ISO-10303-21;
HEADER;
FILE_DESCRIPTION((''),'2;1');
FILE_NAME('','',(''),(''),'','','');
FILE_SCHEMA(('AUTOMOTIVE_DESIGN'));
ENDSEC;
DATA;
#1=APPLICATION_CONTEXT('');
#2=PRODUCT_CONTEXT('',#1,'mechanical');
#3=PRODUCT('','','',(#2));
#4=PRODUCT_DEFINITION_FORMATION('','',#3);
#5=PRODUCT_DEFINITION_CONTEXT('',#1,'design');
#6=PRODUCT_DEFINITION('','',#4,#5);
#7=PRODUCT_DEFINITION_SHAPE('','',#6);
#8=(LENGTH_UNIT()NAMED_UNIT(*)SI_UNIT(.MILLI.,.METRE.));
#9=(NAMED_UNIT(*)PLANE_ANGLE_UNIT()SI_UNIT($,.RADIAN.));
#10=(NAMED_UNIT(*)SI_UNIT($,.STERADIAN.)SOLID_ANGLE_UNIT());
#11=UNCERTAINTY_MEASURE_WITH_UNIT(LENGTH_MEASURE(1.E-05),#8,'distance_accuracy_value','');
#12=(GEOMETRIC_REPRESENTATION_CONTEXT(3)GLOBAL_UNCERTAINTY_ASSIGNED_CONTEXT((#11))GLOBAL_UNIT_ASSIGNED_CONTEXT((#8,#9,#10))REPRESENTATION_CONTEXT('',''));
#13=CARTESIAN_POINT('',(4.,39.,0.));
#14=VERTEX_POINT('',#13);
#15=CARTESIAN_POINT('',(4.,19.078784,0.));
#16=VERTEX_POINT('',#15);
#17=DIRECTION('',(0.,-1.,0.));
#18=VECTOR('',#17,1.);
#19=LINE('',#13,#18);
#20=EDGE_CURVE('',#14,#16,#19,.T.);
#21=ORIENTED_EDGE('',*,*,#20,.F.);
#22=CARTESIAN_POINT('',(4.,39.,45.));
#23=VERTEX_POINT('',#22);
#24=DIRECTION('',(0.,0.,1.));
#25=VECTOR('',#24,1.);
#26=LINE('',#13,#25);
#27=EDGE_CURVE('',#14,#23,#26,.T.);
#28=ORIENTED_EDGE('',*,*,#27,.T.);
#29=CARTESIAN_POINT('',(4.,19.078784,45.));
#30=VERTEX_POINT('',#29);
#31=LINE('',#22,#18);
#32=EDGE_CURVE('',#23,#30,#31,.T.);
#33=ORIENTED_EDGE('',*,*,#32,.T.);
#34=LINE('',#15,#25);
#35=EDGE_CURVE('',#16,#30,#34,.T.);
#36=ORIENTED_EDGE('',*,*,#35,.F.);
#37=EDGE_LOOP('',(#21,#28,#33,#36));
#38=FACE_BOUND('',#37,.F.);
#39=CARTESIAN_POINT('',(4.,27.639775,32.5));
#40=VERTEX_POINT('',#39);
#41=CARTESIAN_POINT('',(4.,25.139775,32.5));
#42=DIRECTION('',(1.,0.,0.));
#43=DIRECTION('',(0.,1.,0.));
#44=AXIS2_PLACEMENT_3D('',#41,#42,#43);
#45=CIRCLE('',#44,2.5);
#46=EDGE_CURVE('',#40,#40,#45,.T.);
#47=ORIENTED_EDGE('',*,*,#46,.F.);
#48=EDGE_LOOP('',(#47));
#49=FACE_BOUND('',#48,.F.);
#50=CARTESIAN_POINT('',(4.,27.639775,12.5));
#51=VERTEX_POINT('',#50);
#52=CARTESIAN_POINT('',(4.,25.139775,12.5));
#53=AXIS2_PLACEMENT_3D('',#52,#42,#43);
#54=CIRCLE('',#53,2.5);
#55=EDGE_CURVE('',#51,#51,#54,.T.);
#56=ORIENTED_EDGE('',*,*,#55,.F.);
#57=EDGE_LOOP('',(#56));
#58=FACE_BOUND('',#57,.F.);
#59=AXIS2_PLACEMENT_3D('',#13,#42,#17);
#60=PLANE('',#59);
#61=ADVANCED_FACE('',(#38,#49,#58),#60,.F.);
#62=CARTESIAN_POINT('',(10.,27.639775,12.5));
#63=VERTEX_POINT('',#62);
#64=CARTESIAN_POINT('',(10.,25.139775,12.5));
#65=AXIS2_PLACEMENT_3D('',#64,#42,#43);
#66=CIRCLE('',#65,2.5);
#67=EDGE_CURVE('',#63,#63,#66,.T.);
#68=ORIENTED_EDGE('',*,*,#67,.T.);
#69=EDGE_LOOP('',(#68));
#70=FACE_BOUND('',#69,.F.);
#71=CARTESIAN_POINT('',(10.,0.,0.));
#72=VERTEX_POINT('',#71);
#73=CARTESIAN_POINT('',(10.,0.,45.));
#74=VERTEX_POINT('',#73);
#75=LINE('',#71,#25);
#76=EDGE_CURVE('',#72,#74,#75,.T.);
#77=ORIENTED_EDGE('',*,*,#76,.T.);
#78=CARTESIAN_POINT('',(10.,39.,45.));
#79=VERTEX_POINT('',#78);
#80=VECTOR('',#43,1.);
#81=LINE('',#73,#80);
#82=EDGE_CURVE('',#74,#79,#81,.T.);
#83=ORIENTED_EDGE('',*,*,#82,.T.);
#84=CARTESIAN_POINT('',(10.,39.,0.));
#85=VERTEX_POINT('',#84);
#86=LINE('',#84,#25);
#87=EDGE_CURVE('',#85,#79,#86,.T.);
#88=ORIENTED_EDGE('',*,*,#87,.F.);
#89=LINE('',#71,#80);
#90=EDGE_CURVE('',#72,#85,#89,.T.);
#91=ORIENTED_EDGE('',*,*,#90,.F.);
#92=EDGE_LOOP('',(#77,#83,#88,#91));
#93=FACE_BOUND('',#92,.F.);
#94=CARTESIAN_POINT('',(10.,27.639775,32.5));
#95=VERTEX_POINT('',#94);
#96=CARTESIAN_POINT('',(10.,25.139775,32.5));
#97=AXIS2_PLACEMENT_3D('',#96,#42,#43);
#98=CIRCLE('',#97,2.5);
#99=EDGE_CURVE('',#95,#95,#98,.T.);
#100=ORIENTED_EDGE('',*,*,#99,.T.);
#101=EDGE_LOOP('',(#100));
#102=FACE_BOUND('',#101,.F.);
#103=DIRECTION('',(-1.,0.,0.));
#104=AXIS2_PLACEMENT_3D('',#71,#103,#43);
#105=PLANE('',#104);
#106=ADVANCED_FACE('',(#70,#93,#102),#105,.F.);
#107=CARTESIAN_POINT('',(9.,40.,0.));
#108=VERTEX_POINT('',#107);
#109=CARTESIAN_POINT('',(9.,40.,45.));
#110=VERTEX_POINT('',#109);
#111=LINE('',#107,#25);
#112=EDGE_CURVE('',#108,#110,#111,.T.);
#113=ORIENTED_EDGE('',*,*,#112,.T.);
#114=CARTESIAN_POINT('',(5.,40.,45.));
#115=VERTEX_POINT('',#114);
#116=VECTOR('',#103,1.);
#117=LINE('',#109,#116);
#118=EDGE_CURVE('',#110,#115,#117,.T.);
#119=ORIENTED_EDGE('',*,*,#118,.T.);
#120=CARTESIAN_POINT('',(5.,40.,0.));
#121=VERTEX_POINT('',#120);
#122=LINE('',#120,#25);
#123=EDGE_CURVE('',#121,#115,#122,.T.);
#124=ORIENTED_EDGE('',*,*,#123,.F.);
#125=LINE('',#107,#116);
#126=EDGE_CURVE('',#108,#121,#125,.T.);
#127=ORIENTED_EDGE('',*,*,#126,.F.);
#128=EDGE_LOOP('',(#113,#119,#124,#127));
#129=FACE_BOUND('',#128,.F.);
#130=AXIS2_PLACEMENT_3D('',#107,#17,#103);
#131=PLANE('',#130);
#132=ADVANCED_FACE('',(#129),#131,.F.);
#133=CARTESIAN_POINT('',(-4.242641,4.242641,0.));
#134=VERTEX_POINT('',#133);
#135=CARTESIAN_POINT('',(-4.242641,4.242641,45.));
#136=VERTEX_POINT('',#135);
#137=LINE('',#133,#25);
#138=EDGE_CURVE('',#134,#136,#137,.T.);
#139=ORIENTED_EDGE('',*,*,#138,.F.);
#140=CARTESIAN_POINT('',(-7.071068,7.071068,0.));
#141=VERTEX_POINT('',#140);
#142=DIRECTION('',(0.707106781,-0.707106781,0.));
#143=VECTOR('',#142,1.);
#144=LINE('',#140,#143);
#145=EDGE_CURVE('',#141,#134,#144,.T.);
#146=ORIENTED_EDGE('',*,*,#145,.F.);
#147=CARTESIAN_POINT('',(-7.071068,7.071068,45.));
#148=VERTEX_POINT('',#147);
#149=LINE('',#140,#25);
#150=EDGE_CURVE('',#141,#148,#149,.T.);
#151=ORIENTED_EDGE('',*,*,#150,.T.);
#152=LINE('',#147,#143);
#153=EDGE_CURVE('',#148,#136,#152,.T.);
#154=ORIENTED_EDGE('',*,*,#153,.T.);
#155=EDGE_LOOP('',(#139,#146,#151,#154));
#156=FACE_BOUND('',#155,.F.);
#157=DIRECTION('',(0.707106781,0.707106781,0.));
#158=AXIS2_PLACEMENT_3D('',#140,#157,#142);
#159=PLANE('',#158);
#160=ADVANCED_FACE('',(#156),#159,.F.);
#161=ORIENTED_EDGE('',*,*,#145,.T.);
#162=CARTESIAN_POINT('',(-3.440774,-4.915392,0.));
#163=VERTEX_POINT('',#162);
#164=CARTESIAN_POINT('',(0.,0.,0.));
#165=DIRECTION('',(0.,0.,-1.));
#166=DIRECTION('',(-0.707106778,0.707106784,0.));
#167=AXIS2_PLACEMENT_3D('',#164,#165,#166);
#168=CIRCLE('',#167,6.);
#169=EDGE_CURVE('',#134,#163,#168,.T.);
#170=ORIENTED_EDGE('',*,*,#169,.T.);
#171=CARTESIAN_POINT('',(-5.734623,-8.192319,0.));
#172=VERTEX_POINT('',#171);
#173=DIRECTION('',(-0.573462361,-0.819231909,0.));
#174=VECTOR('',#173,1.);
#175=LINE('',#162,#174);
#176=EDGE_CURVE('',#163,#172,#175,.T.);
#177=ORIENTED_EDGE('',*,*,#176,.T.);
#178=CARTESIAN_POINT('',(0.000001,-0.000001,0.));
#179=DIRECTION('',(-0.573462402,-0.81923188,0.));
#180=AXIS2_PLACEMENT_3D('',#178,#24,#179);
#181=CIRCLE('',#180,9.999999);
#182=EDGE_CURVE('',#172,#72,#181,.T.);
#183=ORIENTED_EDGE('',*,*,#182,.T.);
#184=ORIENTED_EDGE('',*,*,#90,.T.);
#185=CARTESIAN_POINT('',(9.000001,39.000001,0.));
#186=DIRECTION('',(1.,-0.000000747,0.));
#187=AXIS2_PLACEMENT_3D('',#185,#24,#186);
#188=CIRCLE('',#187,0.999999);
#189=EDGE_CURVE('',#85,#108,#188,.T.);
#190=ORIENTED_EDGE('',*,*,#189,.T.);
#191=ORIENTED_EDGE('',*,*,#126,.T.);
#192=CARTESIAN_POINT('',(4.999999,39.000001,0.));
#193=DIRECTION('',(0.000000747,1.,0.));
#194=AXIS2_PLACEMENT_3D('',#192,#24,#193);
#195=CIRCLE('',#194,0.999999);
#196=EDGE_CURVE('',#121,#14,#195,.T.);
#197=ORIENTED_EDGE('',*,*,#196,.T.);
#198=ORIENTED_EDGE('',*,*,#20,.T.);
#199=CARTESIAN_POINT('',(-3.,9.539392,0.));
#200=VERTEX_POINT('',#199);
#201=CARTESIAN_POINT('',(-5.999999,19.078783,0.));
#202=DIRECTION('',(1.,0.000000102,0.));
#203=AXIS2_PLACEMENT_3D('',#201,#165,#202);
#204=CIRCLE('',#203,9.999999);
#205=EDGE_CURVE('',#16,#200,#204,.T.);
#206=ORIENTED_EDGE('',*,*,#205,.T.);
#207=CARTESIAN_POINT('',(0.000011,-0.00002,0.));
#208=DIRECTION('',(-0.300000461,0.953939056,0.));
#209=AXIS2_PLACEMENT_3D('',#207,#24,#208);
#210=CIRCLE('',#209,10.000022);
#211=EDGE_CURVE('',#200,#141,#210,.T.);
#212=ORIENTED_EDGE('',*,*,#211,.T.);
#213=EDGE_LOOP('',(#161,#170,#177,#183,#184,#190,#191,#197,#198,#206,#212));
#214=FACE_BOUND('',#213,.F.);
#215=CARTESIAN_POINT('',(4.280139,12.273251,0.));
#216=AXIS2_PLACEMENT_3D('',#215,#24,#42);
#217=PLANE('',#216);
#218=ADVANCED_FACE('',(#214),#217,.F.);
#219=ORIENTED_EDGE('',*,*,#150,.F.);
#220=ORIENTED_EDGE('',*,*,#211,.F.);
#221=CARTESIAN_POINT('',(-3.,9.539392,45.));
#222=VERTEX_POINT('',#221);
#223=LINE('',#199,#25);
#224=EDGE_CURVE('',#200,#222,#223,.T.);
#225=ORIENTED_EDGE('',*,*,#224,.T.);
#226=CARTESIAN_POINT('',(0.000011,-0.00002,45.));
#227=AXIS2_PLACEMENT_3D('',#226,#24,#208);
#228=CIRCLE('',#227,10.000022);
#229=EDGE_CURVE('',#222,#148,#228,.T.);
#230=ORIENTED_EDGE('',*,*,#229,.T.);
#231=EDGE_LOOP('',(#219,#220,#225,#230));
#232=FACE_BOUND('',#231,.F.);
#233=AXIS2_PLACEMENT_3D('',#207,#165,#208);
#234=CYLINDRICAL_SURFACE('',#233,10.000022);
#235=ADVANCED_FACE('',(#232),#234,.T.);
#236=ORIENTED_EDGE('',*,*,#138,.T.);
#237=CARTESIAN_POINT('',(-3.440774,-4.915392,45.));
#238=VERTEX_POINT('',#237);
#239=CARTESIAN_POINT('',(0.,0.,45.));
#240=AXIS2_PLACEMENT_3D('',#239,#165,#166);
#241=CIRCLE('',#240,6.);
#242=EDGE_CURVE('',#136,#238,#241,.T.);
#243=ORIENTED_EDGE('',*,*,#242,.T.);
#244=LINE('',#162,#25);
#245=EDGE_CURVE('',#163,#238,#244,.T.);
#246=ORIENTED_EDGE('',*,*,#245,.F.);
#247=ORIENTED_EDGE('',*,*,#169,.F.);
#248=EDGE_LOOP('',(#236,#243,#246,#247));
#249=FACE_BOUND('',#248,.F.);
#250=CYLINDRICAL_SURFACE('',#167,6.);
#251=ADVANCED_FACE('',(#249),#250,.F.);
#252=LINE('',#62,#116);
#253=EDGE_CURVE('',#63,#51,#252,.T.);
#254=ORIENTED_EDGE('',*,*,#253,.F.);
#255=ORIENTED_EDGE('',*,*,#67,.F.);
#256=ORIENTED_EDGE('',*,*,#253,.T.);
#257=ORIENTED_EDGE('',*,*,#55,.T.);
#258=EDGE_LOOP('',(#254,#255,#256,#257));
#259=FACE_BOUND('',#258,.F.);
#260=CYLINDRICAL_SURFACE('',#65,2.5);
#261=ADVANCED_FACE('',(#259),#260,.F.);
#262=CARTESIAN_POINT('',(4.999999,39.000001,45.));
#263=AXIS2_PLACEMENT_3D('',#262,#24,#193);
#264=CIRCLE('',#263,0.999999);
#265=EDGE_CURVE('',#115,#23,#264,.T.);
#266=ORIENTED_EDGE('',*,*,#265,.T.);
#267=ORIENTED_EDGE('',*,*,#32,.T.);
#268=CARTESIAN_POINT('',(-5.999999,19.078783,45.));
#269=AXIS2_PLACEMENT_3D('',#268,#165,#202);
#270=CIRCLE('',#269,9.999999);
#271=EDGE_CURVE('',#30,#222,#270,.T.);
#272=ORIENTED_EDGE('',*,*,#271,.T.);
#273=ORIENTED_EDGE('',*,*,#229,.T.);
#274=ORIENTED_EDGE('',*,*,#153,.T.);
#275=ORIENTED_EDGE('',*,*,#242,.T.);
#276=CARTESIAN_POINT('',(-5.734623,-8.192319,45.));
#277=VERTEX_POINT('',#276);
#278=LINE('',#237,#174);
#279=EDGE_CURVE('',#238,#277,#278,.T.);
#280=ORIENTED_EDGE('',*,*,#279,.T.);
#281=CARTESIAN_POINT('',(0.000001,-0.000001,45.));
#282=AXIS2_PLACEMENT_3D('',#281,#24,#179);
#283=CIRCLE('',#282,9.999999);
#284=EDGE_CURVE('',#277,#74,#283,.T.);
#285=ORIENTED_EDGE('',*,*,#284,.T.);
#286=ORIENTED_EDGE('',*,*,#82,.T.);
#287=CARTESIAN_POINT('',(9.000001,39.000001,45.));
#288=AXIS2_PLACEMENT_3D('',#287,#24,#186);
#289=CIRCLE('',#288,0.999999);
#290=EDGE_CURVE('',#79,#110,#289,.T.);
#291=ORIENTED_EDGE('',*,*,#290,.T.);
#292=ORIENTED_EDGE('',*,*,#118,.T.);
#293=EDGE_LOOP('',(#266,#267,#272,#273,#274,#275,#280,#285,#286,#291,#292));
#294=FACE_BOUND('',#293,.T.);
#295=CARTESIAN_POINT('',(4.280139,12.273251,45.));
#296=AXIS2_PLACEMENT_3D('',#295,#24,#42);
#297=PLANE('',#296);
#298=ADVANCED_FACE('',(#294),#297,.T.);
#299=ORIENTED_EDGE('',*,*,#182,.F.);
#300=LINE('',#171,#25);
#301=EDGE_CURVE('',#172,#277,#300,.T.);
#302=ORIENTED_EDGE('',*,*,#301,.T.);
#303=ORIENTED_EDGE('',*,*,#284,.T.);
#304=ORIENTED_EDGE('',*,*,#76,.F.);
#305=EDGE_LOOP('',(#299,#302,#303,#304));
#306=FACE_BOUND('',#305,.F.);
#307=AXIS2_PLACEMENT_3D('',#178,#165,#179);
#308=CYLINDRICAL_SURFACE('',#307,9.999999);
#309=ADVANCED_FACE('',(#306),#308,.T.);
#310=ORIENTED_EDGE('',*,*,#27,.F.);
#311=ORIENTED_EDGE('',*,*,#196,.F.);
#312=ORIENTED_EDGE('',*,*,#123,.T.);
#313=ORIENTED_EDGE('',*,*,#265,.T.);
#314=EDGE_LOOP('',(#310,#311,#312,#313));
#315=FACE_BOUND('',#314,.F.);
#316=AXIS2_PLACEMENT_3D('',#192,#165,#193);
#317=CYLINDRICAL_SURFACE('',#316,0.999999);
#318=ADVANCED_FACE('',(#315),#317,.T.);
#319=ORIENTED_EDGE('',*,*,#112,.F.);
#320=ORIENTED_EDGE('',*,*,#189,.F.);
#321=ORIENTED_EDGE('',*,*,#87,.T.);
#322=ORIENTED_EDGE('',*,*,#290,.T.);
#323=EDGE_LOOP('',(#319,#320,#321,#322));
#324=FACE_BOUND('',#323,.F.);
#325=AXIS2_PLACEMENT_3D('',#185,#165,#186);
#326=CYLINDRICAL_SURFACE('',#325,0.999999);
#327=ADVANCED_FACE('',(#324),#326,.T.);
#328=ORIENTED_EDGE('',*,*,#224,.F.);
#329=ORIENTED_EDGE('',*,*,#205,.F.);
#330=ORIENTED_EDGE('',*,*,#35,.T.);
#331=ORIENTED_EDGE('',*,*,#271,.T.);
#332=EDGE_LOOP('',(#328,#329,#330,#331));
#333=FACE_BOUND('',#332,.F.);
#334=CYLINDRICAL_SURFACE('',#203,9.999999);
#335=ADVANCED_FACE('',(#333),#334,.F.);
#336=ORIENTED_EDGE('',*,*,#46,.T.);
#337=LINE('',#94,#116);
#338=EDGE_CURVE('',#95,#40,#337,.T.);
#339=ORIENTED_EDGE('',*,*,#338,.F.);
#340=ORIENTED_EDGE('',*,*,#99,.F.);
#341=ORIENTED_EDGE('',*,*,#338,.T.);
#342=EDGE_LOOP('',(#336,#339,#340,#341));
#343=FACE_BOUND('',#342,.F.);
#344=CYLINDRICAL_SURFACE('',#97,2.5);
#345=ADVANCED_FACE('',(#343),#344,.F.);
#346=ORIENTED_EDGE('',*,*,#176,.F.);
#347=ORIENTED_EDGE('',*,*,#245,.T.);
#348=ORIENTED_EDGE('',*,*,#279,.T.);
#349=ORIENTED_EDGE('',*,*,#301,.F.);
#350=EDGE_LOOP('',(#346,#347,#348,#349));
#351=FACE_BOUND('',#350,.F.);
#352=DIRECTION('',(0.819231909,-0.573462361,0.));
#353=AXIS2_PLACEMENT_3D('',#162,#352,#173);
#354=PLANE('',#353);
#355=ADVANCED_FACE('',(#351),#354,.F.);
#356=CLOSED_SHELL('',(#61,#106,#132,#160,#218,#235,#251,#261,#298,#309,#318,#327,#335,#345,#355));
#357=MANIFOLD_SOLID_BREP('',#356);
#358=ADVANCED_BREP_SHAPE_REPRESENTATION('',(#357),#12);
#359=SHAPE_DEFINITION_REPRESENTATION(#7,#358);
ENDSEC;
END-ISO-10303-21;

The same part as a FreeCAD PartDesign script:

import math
import FreeCAD as App
import Part
import Sketcher

V = App.Vector
Q = App.Units.Quantity

doc = App.newDocument("Part")
body = doc.addObject("PartDesign::Body", "Body")

sketch1 = doc.addObject("Sketcher::SketchObject", "Sketch")
body.addObject(sketch1)
sketch1.AttachmentSupport = (doc.XY_Plane, [""])
sketch1.MapMode = "FlatFace"
sketch1.addGeometry([
    Part.ArcOfCircle(Part.Circle(V(0, 0, 0), V(0, 0, 1), 6), math.radians(-125), math.radians(135)),
    Part.LineSegment(V(-3.4, -4.9, 0), V(-5.7, -8.2, 0)),
    Part.ArcOfCircle(Part.Circle(V(0, 0, 0), V(0, 0, 1), 10), math.radians(-125), math.radians(0)),
    Part.LineSegment(V(10, 0, 0), V(10, 39, 0)),
    Part.ArcOfCircle(Part.Circle(V(9, 39, 0), V(0, 0, 1), 1), math.radians(0), math.radians(90)),
    Part.LineSegment(V(9, 40, 0), V(5, 40, 0)),
    Part.ArcOfCircle(Part.Circle(V(5, 39, 0), V(0, 0, 1), 1), math.radians(90), math.radians(180)),
    Part.LineSegment(V(4, 39, 0), V(4, 19.1, 0)),
    Part.ArcOfCircle(Part.Circle(V(-6, 19.1, 0), V(0, 0, 1), 10), math.radians(-73), math.radians(0)),
    Part.ArcOfCircle(Part.Circle(V(0, 0, 0), V(0, 0, 1), 10), math.radians(107), math.radians(135)),
    Part.LineSegment(V(-7.1, 7.1, 0), V(-4.2, 4.2, 0)),
], False)
sketch1.addConstraint([
    Sketcher.Constraint("Coincident", 0, 1, 1, 1),
    Sketcher.Constraint("Coincident", 1, 2, 2, 1),
    Sketcher.Constraint("Tangent", 2, 2, 3, 1),
    Sketcher.Constraint("Tangent", 3, 2, 4, 1),
    Sketcher.Constraint("Tangent", 4, 2, 5, 1),
    Sketcher.Constraint("Tangent", 5, 2, 6, 1),
    Sketcher.Constraint("Tangent", 6, 2, 7, 1),
    Sketcher.Constraint("Tangent", 7, 2, 8, 2),
    Sketcher.Constraint("Tangent", 8, 1, 9, 1),
    Sketcher.Constraint("Coincident", 9, 2, 10, 1),
    Sketcher.Constraint("Coincident", 10, 2, 0, 2),
    Sketcher.Constraint("Vertical", 3),
    Sketcher.Constraint("Horizontal", 5),
    Sketcher.Constraint("Vertical", 7),
    Sketcher.Constraint("Coincident", 0, 3, -1, 1),
    Sketcher.Constraint("Coincident", 2, 3, -1, 1),
    Sketcher.Constraint("Equal", 4, 6),
    Sketcher.Constraint("Equal", 2, 8),
    Sketcher.Constraint("Equal", 1, 10),
    Sketcher.Constraint("Radius", 0, 6.0),
    Sketcher.Constraint("Radius", 2, 9.999999),
    Sketcher.Constraint("Radius", 4, 0.999999),
    Sketcher.Constraint("DistanceX", 5, 2, 5, 1, 4.0),
    Sketcher.Constraint("DistanceY", 3, 1, 3, 2, 39.0),
    Sketcher.Constraint("Angle", 10, Q("-45 deg")),
    Sketcher.Constraint("DistanceX", 8, 1, -1, 1, 3.0),
    Sketcher.Constraint("Radius", 9, 10.000022),
    Sketcher.Constraint("DistanceY", 1, 2, 9, 3, 8.192299),
    Sketcher.Constraint("DistanceX", 10, 2, -1, 1, 4.242641),
    Sketcher.Constraint("DistanceY", 0, 1, 2, 3, 4.915391),
])
pad1 = doc.addObject("PartDesign::Pad", "Pad")
body.addObject(pad1)
pad1.Profile = sketch1
pad1.Length = 45

sketch2 = doc.addObject("Sketcher::SketchObject", "Sketch001")
body.addObject(sketch2)
sketch2.AttachmentSupport = (doc.YZ_Plane, [""])
sketch2.MapMode = "FlatFace"
sketch2.AttachmentOffset = App.Placement(V(0, 0, 10), App.Rotation())
sketch2.addGeometry([
    Part.Circle(V(25.1, 32.5, 0), V(0, 0, 1), 2.5),
    Part.Circle(V(25.1, 12.5, 0), V(0, 0, 1), 2.5),
], False)
sketch2.addConstraint([
    Sketcher.Constraint("Equal", 0, 1),
    Sketcher.Constraint("Vertical", 0, 3, 1, 3),
    Sketcher.Constraint("Diameter", 0, 5.0),
    Sketcher.Constraint("DistanceY", 1, 3, 0, 3, 20.0),
    Sketcher.Constraint("DistanceY", -1, 1, 0, 3, 32.5),
    Sketcher.Constraint("DistanceX", -1, 1, 0, 3, 25.139775),
])
pocket1 = doc.addObject("PartDesign::Pocket", "Pocket")
body.addObject(pocket1)
pocket1.Profile = sketch2
pocket1.Length = 6

doc.recompute()
